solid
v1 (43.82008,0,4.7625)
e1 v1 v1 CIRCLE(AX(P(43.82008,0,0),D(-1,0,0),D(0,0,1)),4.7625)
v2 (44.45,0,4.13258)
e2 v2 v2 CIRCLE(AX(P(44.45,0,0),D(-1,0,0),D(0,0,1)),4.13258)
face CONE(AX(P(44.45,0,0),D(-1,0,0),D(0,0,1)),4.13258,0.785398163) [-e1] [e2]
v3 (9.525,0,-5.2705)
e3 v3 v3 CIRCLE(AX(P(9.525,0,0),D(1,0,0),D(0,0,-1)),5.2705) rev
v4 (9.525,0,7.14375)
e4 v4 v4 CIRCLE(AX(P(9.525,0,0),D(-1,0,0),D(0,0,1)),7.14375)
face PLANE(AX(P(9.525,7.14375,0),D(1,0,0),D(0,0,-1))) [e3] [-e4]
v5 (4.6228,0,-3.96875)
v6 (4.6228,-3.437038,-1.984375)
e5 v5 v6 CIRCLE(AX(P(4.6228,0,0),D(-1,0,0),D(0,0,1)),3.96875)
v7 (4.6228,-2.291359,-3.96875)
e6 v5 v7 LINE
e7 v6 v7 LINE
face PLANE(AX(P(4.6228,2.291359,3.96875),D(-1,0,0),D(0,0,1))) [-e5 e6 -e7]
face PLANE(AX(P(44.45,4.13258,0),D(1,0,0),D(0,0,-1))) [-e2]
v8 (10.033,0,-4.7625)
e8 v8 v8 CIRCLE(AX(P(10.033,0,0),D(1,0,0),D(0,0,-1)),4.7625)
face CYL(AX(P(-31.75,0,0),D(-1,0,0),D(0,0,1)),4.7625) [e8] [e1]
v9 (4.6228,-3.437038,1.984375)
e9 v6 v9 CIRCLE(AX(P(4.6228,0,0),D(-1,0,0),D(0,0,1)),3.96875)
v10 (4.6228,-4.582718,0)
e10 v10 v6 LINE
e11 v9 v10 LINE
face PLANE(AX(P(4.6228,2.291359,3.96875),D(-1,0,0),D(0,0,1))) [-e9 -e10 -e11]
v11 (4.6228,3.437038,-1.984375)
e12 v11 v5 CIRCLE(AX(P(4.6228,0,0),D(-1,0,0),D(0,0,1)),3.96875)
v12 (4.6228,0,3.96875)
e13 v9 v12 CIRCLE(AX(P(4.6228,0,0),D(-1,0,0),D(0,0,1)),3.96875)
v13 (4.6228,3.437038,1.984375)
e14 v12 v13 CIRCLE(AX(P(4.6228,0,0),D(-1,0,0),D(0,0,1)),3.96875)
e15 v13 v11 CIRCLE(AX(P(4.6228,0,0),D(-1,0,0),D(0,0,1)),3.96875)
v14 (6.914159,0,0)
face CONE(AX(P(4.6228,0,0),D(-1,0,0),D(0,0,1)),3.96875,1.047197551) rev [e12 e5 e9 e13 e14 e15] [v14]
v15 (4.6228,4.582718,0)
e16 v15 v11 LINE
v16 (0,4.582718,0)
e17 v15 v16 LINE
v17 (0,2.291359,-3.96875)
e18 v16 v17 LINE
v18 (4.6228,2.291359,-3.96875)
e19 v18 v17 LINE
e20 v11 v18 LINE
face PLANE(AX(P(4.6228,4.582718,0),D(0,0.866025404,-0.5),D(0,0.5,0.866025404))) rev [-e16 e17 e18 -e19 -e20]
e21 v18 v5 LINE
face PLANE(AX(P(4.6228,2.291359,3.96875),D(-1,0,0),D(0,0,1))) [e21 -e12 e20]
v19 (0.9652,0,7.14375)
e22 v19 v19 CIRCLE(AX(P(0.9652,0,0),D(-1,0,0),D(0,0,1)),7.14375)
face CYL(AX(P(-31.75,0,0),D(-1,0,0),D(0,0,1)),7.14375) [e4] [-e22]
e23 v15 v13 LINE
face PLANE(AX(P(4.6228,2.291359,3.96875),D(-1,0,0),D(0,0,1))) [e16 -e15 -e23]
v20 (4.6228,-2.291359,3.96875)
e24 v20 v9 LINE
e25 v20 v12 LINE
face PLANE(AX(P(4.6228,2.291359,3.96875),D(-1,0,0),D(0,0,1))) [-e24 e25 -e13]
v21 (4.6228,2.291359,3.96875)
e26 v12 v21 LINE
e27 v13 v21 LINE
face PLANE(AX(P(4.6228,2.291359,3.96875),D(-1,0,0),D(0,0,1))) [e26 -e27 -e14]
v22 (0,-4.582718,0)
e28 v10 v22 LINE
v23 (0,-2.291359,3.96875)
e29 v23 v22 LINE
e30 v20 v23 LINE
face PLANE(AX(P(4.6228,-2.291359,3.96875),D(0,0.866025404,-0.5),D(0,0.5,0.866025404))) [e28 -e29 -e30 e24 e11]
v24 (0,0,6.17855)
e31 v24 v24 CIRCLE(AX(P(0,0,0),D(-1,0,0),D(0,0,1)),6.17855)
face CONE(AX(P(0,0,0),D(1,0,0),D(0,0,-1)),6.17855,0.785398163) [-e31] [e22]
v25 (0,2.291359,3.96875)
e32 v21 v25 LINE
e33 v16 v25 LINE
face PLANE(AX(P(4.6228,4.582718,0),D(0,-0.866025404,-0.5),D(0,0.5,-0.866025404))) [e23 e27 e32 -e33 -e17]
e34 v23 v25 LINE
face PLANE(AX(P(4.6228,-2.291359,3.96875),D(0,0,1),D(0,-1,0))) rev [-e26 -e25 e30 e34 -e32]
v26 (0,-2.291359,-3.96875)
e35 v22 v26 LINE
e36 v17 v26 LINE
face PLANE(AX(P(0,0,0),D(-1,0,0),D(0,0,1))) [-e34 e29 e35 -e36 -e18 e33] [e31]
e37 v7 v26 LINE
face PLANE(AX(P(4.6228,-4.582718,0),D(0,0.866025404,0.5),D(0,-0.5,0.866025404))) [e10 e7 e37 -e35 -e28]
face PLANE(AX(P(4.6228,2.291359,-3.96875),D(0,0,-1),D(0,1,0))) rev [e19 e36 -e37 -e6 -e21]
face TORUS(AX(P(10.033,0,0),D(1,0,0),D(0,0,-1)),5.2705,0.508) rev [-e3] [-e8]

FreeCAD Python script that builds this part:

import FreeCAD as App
import Part
import Sketcher
Q = App.Units.Quantity


def edges_at(feature, points):
    """Names of the edges that pass closest to the given points."""
    edges = feature.Shape.Edges
    near = lambda p: min(range(len(edges)), key=lambda i: edges[i].distToShape(Part.Vertex(*p))[0])
    return sorted({f"Edge{near(p) + 1}" for p in points})

doc = App.newDocument("Part")
body = doc.addObject("PartDesign::Body", "Body")

# Sketch on XY plane
sketch1 = body.newObject("Sketcher::SketchObject", "Sketch")
sketch1.AttachmentSupport = (doc.getObject("XY_Plane"), [""])
sketch1.MapMode = "FlatFace"
sketch1.addGeometry([
    Part.LineSegment(App.Vector(0, 6.2, 0), App.Vector(0, 0, 0)),  # 0
    Part.LineSegment(App.Vector(0, 0, 0), App.Vector(44.5, 0, 0)),  # 1
    Part.LineSegment(App.Vector(44.5, 0, 0), App.Vector(44.5, 4.1, 0)),  # 2
    Part.LineSegment(App.Vector(44.5, 4.1, 0), App.Vector(43.8, 4.8, 0)),  # 3
    Part.LineSegment(App.Vector(43.8, 4.8, 0), App.Vector(9.5, 4.8, 0)),  # 4
    Part.LineSegment(App.Vector(9.5, 4.8, 0), App.Vector(9.5, 7.1, 0)),  # 5
    Part.LineSegment(App.Vector(9.5, 7.1, 0), App.Vector(1, 7.1, 0)),  # 6
    Part.LineSegment(App.Vector(1, 7.1, 0), App.Vector(0, 6.2, 0)),  # 7
], False)
sketch1.addConstraint([
    Sketcher.Constraint("Coincident", 0, 2, 1, 1),
    Sketcher.Constraint("Coincident", 1, 2, 2, 1),
    Sketcher.Constraint("Coincident", 2, 2, 3, 1),
    Sketcher.Constraint("Coincident", 3, 2, 4, 1),
    Sketcher.Constraint("Coincident", 4, 2, 5, 1),
    Sketcher.Constraint("Coincident", 5, 2, 6, 1),
    Sketcher.Constraint("Coincident", 6, 2, 7, 1),
    Sketcher.Constraint("Coincident", 7, 2, 0, 1),
    Sketcher.Constraint("Vertical", 0),
    Sketcher.Constraint("Horizontal", 1),
    Sketcher.Constraint("Vertical", 2),
    Sketcher.Constraint("Horizontal", 4),
    Sketcher.Constraint("Vertical", 5),
    Sketcher.Constraint("Horizontal", 6),
    Sketcher.Constraint("Coincident", 0, 2, -1, 1),
    Sketcher.Constraint("Perpendicular", 3, 7),
    Sketcher.Constraint("Angle", 3, Q("135 deg")),
    Sketcher.Constraint("DistanceX", 1, 1, 1, 2, Q("1.75 in")),
    Sketcher.Constraint("DistanceX", 6, 2, 6, 1, Q("0.337 in")),
    Sketcher.Constraint("DistanceY", 5, 1, 5, 2, Q("0.09375 in")),
    Sketcher.Constraint("DistanceX", 4, 2, 4, 1, Q("1.3502 in")),
    Sketcher.Constraint("DistanceY", 2, 1, 2, 2, Q("0.1627 in")),
    Sketcher.Constraint("DistanceY", -1, 1, 3, 2, Q("0.1875 in")),
])
revolution = body.newObject("PartDesign::Revolution", "Revolution")
revolution.Profile = sketch1
revolution.ReferenceAxis = (sketch1, ["H_Axis"])
revolution.Angle = 360
doc.recompute()

fillet = body.newObject("PartDesign::Fillet", "Fillet")
fillet.Base = (revolution, edges_at(revolution, [(9.525, 0, -4.763)]))
fillet.Radius = Q("0.02 in")

# Sketch on XY plane
sketch2 = body.newObject("Sketcher::SketchObject", "Sketch001")
sketch2.AttachmentSupport = (doc.getObject("XY_Plane"), [""])
sketch2.MapMode = "FlatFace"
sketch2.addGeometry([
    Part.LineSegment(App.Vector(4.6, 4, 0), App.Vector(0, 4, 0)),
    Part.LineSegment(App.Vector(0, 4, 0), App.Vector(0, 0, 0)),
    Part.LineSegment(App.Vector(0, 0, 0), App.Vector(6.9, 0, 0)),
    Part.LineSegment(App.Vector(6.9, 0, 0), App.Vector(4.6, 4, 0)),
], False)
sketch2.addConstraint([
    Sketcher.Constraint("Coincident", 0, 2, 1, 1),
    Sketcher.Constraint("Coincident", 1, 2, 2, 1),
    Sketcher.Constraint("Coincident", 2, 2, 3, 1),
    Sketcher.Constraint("Coincident", 3, 2, 0, 1),
    Sketcher.Constraint("Horizontal", 0),
    Sketcher.Constraint("Vertical", 1),
    Sketcher.Constraint("Horizontal", 2),
    Sketcher.Constraint("Coincident", 1, 2, -1, 1),
    Sketcher.Constraint("Angle", 3, Q("120 deg")),
    Sketcher.Constraint("DistanceX", 0, 2, 0, 1, Q("0.182 in")),
    Sketcher.Constraint("DistanceY", 1, 2, 1, 1, Q("0.15625 in")),
])
groove = body.newObject("PartDesign::Groove", "Groove")
groove.Profile = sketch2
groove.ReferenceAxis = (sketch2, ["H_Axis"])
groove.Angle = 360

# Sketch on YZ plane
sketch3 = body.newObject("Sketcher::SketchObject", "Sketch002")
sketch3.AttachmentSupport = (doc.getObject("YZ_Plane"), [""])
sketch3.MapMode = "FlatFace"
sketch3.addGeometry([
    Part.LineSegment(App.Vector(4.6, 0, 0), App.Vector(2.3, -4, 0)),  # 0
    Part.LineSegment(App.Vector(2.3, -4, 0), App.Vector(-2.3, -4, 0)),  # 1
    Part.LineSegment(App.Vector(-2.3, -4, 0), App.Vector(-4.6, 0, 0)),  # 2
    Part.LineSegment(App.Vector(-4.6, 0, 0), App.Vector(-2.3, 4, 0)),  # 3
    Part.LineSegment(App.Vector(-2.3, 4, 0), App.Vector(2.3, 4, 0)),  # 4
    Part.LineSegment(App.Vector(2.3, 4, 0), App.Vector(4.6, 0, 0)),  # 5
], False)
sketch3.addConstraint([
    Sketcher.Constraint("Coincident", 0, 2, 1, 1),
    Sketcher.Constraint("Coincident", 1, 2, 2, 1),
    Sketcher.Constraint("Coincident", 2, 2, 3, 1),
    Sketcher.Constraint("Coincident", 3, 2, 4, 1),
    Sketcher.Constraint("Coincident", 4, 2, 5, 1),
    Sketcher.Constraint("Coincident", 5, 2, 0, 1),
    Sketcher.Constraint("Horizontal", 1),
    Sketcher.Constraint("Horizontal", 4),
    Sketcher.Constraint("Symmetric", 0, 2, 3, 2, -1, 1),
    Sketcher.Constraint("Symmetric", 2, 2, 5, 2, -1, 1),
    Sketcher.Constraint("PointOnObject", 2, 2, -1),
    Sketcher.Constraint("Parallel", 2, 5),
    Sketcher.Constraint("Vertical", 1, 2, 3, 2),
    Sketcher.Constraint("Angle", 0, Q("-120 deg")),
    Sketcher.Constraint("DistanceY", 0, 2, -1, 1, Q("0.15625 in")),
    Sketcher.Constraint("DistanceX", 1, 2, 1, 1, Q("4.582718 mm")),
])
pocket1 = body.newObject("PartDesign::Pocket", "Pocket")
pocket1.Profile = sketch3
pocket1.Length = Q("0.182 in")
pocket1.Reversed = True

doc.recompute()
